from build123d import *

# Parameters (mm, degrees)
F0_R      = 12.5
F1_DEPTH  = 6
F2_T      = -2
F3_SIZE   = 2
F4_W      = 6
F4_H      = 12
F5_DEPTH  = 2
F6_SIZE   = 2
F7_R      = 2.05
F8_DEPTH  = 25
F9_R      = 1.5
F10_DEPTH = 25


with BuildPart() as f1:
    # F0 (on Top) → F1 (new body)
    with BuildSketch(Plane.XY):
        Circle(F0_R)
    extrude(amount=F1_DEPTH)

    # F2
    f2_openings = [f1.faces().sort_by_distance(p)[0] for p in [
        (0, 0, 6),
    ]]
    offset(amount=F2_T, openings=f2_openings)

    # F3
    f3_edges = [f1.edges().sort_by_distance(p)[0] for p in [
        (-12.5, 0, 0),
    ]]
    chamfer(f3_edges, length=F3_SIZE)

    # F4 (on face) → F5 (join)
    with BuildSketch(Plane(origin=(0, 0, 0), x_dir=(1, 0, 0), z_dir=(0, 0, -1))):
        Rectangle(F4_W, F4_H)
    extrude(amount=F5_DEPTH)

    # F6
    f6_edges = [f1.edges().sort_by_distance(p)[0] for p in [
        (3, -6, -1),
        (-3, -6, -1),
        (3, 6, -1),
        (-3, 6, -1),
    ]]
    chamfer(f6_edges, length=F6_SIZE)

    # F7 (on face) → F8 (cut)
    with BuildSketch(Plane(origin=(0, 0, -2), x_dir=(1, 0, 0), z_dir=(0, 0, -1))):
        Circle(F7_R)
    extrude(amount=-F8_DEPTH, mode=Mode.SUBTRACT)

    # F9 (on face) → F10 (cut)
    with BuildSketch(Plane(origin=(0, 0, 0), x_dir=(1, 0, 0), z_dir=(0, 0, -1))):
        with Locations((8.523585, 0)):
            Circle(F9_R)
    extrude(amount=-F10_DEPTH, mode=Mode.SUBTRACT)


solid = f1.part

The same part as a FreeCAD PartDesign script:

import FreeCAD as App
import Part
import Sketcher

V = App.Vector


def edges_at(feature, points):
    """Names of the edges that pass closest to the given points."""
    edges = feature.Shape.Edges
    near = lambda p: min(range(len(edges)), key=lambda i: edges[i].distToShape(Part.Vertex(*p))[0])
    return sorted({f"Edge{near(p) + 1}" for p in points})


def faces_at(feature, points):
    """Names of the faces that lie closest to the given points."""
    faces = feature.Shape.Faces
    near = lambda p: min(range(len(faces)), key=lambda i: faces[i].distToShape(Part.Vertex(*p))[0])
    return sorted({f"Face{near(p) + 1}" for p in points})

doc = App.newDocument("Part")
body = doc.addObject("PartDesign::Body", "Body")

# Sketch on XY plane
sketch1 = body.newObject("Sketcher::SketchObject", "Sketch")
sketch1.AttachmentSupport = (doc.getObject("XY_Plane"), [""])
sketch1.MapMode = "FlatFace"
sketch1.addGeometry(Part.Circle(V(0, 0, 0), V(0, 0, 1), 12), False)
sketch1.addConstraint([
    Sketcher.Constraint("Coincident", 0, 3, -1, 1),
    Sketcher.Constraint("Diameter", 0, 25.0),
])
pad1 = body.newObject("PartDesign::Pad", "Pad")
pad1.Profile = sketch1
pad1.Length = 6
doc.recompute()

thickness = body.newObject("PartDesign::Thickness", "Thickness")
thickness.Base = (pad1, faces_at(pad1, [(0, 0, 6)]))
thickness.Value = 2
thickness.Reversed = True
thickness.Join = "Arc"
doc.recompute()

chamfer = body.newObject("PartDesign::Chamfer", "Chamfer")
chamfer.Base = (thickness, edges_at(thickness, [(-12.5, 0, 0)]))
chamfer.Size = 2

# Sketch on XY plane
sketch2 = body.newObject("Sketcher::SketchObject", "Sketch001")
sketch2.AttachmentSupport = (doc.getObject("XY_Plane"), [""])
sketch2.MapMode = "FlatFace"
sketch2.addGeometry([
    Part.LineSegment(V(-3, -6, 0), V(-3, 6, 0)),
    Part.LineSegment(V(-3, 6, 0), V(3, 6, 0)),
    Part.LineSegment(V(3, 6, 0), V(3, -6, 0)),
    Part.LineSegment(V(3, -6, 0), V(-3, -6, 0)),
], False)
sketch2.addConstraint([
    Sketcher.Constraint("Coincident", 0, 2, 1, 1),
    Sketcher.Constraint("Coincident", 1, 2, 2, 1),
    Sketcher.Constraint("Coincident", 2, 2, 3, 1),
    Sketcher.Constraint("Coincident", 3, 2, 0, 1),
    Sketcher.Constraint("Vertical", 0),
    Sketcher.Constraint("Horizontal", 1),
    Sketcher.Constraint("Vertical", 2),
    Sketcher.Constraint("Horizontal", 3),
    Sketcher.Constraint("Symmetric", 0, 2, 2, 2, -1, 1),
    Sketcher.Constraint("DistanceX", 1, 1, 1, 2, 6.0),
    Sketcher.Constraint("DistanceY", 0, 1, 0, 2, 12.0),
])
pad2 = body.newObject("PartDesign::Pad", "Pad001")
pad2.Profile = sketch2
pad2.Length = 2
pad2.Reversed = True
doc.recompute()

chamfer2 = body.newObject("PartDesign::Chamfer", "Chamfer001")
chamfer2.Base = (pad2, edges_at(pad2, [
    (3, -6, -1),
    (-3, -6, -1),
    (3, 6, -1),
    (-3, 6, -1),
]))
chamfer2.Size = 2

# Sketch on XY plane
sketch3 = body.newObject("Sketcher::SketchObject", "Sketch002")
sketch3.AttachmentSupport = (doc.getObject("XY_Plane"), [""])
sketch3.MapMode = "FlatFace"
sketch3.AttachmentOffset = App.Placement(V(0, 0, -2), App.Rotation())
sketch3.addGeometry(Part.Circle(V(0, 0, 0), V(0, 0, 1), 2), False)
sketch3.addConstraint([
    Sketcher.Constraint("Coincident", 0, 3, -1, 1),
    Sketcher.Constraint("Diameter", 0, 4.1),
])
pocket1 = body.newObject("PartDesign::Pocket", "Pocket")
pocket1.Profile = sketch3
pocket1.Length = 25
pocket1.Reversed = True

# Sketch on XY plane
sketch4 = body.newObject("Sketcher::SketchObject", "Sketch003")
sketch4.AttachmentSupport = (doc.getObject("XY_Plane"), [""])
sketch4.MapMode = "FlatFace"
sketch4.addGeometry(Part.Circle(V(8.5, 0, 0), V(0, 0, 1), 1.5), False)
sketch4.addConstraint([
    Sketcher.Constraint("PointOnObject", 0, 3, -1),
    Sketcher.Constraint("Diameter", 0, 3.0),
    Sketcher.Constraint("DistanceX", -1, 1, 0, 3, 8.523585),
])
pocket2 = body.newObject("PartDesign::Pocket", "Pocket001")
pocket2.Profile = sketch4
pocket2.Length = 25
pocket2.Reversed = True

doc.recompute()
